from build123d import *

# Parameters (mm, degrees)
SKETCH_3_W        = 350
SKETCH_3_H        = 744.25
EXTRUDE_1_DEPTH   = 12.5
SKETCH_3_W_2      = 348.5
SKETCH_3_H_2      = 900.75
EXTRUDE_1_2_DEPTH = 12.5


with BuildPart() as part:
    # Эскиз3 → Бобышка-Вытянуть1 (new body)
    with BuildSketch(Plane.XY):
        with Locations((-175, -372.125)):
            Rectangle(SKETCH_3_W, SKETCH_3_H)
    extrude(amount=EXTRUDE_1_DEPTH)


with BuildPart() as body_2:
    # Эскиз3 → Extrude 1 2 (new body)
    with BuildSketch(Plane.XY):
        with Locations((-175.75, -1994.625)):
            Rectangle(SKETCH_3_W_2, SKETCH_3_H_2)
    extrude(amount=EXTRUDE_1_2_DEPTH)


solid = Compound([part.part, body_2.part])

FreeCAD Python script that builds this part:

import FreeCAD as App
import Part
import Sketcher
Q = App.Units.Quantity


def add_polygon(sketch, points):
    """Adds a closed chain of lines whose ends are joined by coincident constraints."""
    first, n = sketch.GeometryCount, len(points)
    for a, b in zip(points, points[1:] + points[:1]):
        sketch.addGeometry(Part.LineSegment(App.Vector(*a, 0), App.Vector(*b, 0)), False)
    for i in range(n):
        sketch.addConstraint(Sketcher.Constraint("Coincident", first + i, 2, first + (i + 1) % n, 1))

doc = App.newDocument("Part")
body = doc.addObject("PartDesign::Body", "Body")

sketch1 = body.newObject("Sketcher::SketchObject", "Sketch")
sketch1.AttachmentSupport = (doc.getObject("XY_Plane"), [""])
sketch1.MapMode = "FlatFace"
add_polygon(sketch1, [(-350, 0), (-350, -744), (0, -744), (0, 0)])
sketch1.addConstraint([
    Sketcher.Constraint("Vertical", 0),
    Sketcher.Constraint("Horizontal", 1),
    Sketcher.Constraint("Vertical", 2),
    Sketcher.Constraint("Horizontal", 3),
    Sketcher.Constraint("Coincident", 2, 2, -1, 1),
    Sketcher.Constraint("DistanceX", 1, 1, 1, 2, Q("350 mm")),
    Sketcher.Constraint("DistanceY", 0, 2, 0, 1, Q("744.25 mm")),
])
pad1 = body.newObject("PartDesign::Pad", "Pad")
pad1.Profile = sketch1
pad1.Length = 12.5
body2 = doc.addObject("PartDesign::Body", "Body001")

sketch2 = body2.newObject("Sketcher::SketchObject", "Sketch001")
sketch2.AttachmentSupport = (doc.getObject("XY_Plane001"), [""])
sketch2.MapMode = "FlatFace"
add_polygon(sketch2, [(-350, -1544), (-350, -2445), (-2, -2445), (-2, -1544)])
sketch2.addConstraint([
    Sketcher.Constraint("Vertical", 0),
    Sketcher.Constraint("Horizontal", 1),
    Sketcher.Constraint("Vertical", 2),
    Sketcher.Constraint("Horizontal", 3),
    Sketcher.Constraint("DistanceX", 1, 1, 1, 2, Q("348.5 mm")),
    Sketcher.Constraint("DistanceX", 0, 2, -1, 1, Q("350 mm")),
    Sketcher.Constraint("DistanceY", 0, 2, -1, 1, Q("2445 mm")),
    Sketcher.Constraint("DistanceY", 0, 2, 0, 1, Q("900.75 mm")),
])
pad2 = body2.newObject("PartDesign::Pad", "Pad001")
pad2.Profile = sketch2
pad2.Length = 12.5

doc.recompute()
